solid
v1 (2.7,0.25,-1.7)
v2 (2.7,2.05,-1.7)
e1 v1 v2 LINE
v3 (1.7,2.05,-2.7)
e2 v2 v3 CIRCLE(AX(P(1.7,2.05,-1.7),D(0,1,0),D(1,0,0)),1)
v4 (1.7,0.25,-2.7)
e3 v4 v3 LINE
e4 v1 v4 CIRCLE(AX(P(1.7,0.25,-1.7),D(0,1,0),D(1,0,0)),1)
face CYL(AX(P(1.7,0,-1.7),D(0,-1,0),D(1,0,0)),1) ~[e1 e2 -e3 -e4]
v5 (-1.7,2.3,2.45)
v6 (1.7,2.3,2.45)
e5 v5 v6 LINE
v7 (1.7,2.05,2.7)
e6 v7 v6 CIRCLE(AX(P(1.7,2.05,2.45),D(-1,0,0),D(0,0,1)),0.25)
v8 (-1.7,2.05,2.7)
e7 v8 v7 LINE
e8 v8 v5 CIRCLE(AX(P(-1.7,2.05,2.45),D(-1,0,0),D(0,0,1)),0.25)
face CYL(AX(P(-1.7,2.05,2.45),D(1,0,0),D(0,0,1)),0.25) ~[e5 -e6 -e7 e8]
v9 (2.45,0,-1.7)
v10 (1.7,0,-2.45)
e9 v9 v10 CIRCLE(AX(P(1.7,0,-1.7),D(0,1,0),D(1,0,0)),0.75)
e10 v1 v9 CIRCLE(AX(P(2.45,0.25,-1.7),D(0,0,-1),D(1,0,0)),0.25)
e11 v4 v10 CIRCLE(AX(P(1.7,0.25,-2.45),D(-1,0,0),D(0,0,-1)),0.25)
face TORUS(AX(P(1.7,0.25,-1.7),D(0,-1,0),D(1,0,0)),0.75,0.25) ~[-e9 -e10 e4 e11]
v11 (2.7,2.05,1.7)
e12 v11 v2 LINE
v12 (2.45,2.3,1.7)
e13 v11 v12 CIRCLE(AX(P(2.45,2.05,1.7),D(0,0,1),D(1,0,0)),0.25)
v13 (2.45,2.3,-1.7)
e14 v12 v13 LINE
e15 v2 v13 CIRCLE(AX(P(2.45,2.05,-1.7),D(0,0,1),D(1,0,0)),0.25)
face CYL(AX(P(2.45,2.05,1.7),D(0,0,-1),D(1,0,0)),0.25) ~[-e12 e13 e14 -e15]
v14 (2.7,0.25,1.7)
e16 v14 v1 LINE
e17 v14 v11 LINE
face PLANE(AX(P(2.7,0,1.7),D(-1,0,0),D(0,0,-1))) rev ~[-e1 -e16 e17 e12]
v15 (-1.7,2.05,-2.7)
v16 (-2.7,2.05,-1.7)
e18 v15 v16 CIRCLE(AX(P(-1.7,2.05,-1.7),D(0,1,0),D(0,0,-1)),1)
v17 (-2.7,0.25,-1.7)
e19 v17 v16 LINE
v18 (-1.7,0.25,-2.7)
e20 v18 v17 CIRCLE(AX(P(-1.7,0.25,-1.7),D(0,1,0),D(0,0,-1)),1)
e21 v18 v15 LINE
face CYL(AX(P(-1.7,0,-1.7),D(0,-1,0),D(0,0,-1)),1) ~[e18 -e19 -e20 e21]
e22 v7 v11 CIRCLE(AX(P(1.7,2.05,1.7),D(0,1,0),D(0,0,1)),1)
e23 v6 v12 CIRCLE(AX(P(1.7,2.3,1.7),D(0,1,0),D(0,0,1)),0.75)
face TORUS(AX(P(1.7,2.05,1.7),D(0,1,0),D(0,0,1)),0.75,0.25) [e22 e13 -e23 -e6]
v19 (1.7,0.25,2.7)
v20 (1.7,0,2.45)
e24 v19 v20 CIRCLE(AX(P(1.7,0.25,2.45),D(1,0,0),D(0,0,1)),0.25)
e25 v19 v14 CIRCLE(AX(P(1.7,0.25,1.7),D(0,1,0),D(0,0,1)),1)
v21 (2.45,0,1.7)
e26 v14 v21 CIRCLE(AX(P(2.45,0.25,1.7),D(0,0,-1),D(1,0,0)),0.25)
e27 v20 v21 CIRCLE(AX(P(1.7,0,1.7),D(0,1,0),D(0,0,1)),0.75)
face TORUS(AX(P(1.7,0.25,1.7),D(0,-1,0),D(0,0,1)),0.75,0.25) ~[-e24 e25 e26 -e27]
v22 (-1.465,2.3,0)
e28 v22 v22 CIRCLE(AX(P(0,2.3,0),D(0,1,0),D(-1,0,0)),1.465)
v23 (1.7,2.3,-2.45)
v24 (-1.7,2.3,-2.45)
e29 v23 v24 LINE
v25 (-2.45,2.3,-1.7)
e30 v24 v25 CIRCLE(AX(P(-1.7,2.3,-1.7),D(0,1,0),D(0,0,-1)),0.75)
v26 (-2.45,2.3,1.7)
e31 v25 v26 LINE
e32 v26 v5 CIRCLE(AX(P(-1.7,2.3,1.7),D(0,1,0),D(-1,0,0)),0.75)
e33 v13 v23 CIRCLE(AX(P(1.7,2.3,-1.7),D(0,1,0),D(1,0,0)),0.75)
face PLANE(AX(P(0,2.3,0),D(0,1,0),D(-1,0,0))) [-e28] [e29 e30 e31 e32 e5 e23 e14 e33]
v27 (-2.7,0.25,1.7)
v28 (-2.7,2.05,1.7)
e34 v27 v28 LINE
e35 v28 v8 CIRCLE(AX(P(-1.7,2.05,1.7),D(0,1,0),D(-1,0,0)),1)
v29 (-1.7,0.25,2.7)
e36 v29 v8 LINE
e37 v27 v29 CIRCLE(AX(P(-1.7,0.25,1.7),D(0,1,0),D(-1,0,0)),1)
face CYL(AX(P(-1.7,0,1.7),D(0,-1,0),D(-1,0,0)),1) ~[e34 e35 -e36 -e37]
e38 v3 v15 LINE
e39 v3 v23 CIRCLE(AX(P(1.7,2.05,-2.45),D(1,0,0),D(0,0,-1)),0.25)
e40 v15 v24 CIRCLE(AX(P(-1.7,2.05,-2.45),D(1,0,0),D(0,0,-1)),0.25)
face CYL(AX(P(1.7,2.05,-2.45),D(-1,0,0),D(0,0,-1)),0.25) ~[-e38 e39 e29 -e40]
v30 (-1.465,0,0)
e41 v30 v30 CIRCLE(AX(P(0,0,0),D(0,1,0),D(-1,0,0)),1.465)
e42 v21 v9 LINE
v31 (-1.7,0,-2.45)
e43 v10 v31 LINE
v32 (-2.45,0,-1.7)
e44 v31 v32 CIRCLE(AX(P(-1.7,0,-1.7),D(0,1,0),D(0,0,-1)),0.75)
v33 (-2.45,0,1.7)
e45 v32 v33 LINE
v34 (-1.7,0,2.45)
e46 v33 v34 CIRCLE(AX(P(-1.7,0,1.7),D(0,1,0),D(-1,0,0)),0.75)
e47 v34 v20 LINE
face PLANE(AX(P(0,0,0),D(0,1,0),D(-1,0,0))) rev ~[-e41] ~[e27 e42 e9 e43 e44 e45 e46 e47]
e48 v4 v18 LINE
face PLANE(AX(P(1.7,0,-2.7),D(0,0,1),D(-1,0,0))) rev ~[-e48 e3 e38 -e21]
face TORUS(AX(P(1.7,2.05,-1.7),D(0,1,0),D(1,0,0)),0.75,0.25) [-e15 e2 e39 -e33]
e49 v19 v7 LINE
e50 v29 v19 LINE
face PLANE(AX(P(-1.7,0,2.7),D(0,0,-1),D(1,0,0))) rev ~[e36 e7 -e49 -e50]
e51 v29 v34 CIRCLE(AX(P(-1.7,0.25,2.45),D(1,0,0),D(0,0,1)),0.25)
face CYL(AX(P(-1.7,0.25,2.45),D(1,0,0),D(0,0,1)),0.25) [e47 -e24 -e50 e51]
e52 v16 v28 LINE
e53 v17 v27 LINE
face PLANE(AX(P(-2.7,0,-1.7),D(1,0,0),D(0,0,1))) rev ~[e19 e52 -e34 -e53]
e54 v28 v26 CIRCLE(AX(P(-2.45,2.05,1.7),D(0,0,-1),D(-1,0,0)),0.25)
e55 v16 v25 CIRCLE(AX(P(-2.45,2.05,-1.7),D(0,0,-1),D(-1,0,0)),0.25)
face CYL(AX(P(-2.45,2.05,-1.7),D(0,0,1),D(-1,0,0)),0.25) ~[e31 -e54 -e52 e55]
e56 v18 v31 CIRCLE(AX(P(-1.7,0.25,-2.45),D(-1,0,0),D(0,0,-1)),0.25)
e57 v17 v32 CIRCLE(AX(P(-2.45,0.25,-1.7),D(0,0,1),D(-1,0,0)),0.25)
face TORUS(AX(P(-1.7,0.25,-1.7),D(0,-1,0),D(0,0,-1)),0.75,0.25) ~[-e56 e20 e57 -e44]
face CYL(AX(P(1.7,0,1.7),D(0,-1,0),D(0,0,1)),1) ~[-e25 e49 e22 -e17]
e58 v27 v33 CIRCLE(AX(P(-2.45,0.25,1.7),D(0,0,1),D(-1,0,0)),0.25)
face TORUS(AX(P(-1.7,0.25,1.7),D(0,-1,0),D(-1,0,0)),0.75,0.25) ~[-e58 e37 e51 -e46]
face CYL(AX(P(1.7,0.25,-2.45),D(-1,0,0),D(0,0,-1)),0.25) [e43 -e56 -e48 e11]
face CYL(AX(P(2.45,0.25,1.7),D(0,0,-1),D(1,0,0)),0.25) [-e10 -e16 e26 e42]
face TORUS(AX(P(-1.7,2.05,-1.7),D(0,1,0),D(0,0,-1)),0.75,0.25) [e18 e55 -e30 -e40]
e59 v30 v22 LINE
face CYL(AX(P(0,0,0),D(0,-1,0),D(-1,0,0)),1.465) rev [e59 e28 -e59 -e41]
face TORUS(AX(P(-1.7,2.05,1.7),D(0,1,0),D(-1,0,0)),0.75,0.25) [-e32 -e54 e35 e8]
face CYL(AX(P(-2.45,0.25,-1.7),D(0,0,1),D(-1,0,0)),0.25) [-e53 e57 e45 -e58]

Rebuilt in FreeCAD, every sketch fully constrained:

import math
import FreeCAD as App
import Part
import Sketcher
from FreeCAD import Vector


def edges_at(feature, points):
    """Names of the edges that pass closest to the given points."""
    edges = feature.Shape.Edges
    near = lambda p: min(range(len(edges)), key=lambda i: edges[i].distToShape(Part.Vertex(*p))[0])
    return sorted({f"Edge{near(p) + 1}" for p in points})

doc = App.newDocument("Part")
params = doc.addObject("Spreadsheet::Sheet", "Params")
for row, (alias, value) in enumerate([
    ("sketch1_radius", "1 mm"),
    ("sketch1_diameter", "2.93 mm"),
    ("sketch1_width", "3.4 mm"),
    ("pad1_length", "2.3 mm"),
    ("fillet_radius", "0.25 mm"),
], start=1):
    params.set(f"A{row}", alias)
    params.set(f"B{row}", "=" + value)
    params.setAlias(f"B{row}", alias)

body = doc.addObject("PartDesign::Body", "Body")

# Sketch on XZ plane
sketch1 = body.newObject("Sketcher::SketchObject", "Sketch")
sketch1.AttachmentSupport = (doc.getObject("XZ_Plane"), [""])
sketch1.MapMode = "FlatFace"
sketch1.addGeometry([
    Part.ArcOfCircle(Part.Circle(Vector(1.7, -1.7, 0), Vector(0, 0, 1), 1), math.radians(-90), math.radians(0)),  # 0
    Part.LineSegment(Vector(1.7, -2.7, 0), Vector(-1.7, -2.7, 0)),  # 1
    Part.ArcOfCircle(Part.Circle(Vector(-1.7, -1.7, 0), Vector(0, 0, 1), 1), math.radians(180), math.radians(270)),  # 2
    Part.LineSegment(Vector(-2.7, -1.7, 0), Vector(-2.7, 1.7, 0)),  # 3
    Part.ArcOfCircle(Part.Circle(Vector(-1.7, 1.7, 0), Vector(0, 0, 1), 1), math.radians(90), math.radians(180)),  # 4
    Part.LineSegment(Vector(-1.7, 2.7, 0), Vector(1.7, 2.7, 0)),  # 5
    Part.ArcOfCircle(Part.Circle(Vector(1.7, 1.7, 0), Vector(0, 0, 1), 1), math.radians(0), math.radians(90)),  # 6
    Part.LineSegment(Vector(2.7, 1.7, 0), Vector(2.7, -1.7, 0)),  # 7
    Part.Circle(Vector(0, 0, 0), Vector(0, 0, 1), 1.465),  # 8
], False)
sketch1.addConstraint([
    Sketcher.Constraint("Tangent", 0, 1, 1, 1),
    Sketcher.Constraint("Tangent", 1, 2, 2, 2),
    Sketcher.Constraint("Tangent", 2, 1, 3, 1),
    Sketcher.Constraint("Tangent", 3, 2, 4, 2),
    Sketcher.Constraint("Tangent", 4, 1, 5, 1),
    Sketcher.Constraint("Tangent", 5, 2, 6, 2),
    Sketcher.Constraint("Tangent", 6, 1, 7, 1),
    Sketcher.Constraint("Tangent", 7, 2, 0, 2),
    Sketcher.Constraint("Horizontal", 1),
    Sketcher.Constraint("Vertical", 3),
    Sketcher.Constraint("Horizontal", 5),
    Sketcher.Constraint("Vertical", 7),
    Sketcher.Constraint("Coincident", 8, 3, -1, 1),
    Sketcher.Constraint("Equal", 0, 2),
    Sketcher.Constraint("Equal", 2, 4),
    Sketcher.Constraint("Equal", 4, 6),
    Sketcher.Constraint("Symmetric", 0, 3, 4, 3, -1, 1),
    Sketcher.Constraint("Equal", 5, 3),
    Sketcher.Constraint("Radius", 0, 1.0),
    Sketcher.Constraint("Diameter", 8, 2.93),
    Sketcher.Constraint("DistanceX", 1, 2, 1, 1, 3.4),
])
sketch1.setExpression("Constraints[18]", "Params.sketch1_radius")
sketch1.setExpression("Constraints[19]", "Params.sketch1_diameter")
sketch1.setExpression("Constraints[20]", "Params.sketch1_width")
pad1 = body.newObject("PartDesign::Pad", "Pad")
pad1.Profile = sketch1
pad1.setExpression("Length", "Params.pad1_length")
pad1.Reversed = True
doc.recompute()

fillet = body.newObject("PartDesign::Fillet", "Fillet")
fillet.Base = (pad1, edges_at(pad1, [
    (2.7, 2.3, 0),
    (2.407, 2.3, -2.407),
    (0, 2.3, -2.7),
    (-2.407, 2.3, -2.407),
    (-2.7, 2.3, 0),
    (-2.407, 2.3, 2.407),
    (0, 2.3, 2.7),
    (2.407, 2.3, 2.407),
    (2.7, 0, 0),
    (2.407, 0, -2.407),
    (0, 0, -2.7),
    (-2.407, 0, -2.407),
    (-2.7, 0, 0),
    (-2.407, 0, 2.407),
    (0, 0, 2.7),
    (2.407, 0, 2.407),
]))
fillet.setExpression("Radius", "Params.fillet_radius")

doc.recompute()
